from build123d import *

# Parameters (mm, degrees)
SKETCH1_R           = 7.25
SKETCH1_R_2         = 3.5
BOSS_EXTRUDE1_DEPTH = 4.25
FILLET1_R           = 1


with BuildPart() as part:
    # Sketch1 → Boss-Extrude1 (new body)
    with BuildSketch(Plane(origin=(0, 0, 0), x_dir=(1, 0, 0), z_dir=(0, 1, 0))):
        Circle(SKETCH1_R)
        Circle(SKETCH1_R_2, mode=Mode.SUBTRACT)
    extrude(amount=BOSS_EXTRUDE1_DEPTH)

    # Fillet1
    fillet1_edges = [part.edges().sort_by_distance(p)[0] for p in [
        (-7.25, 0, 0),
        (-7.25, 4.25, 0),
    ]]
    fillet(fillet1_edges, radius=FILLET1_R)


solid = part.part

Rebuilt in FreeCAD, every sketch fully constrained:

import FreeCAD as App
import Part
import Sketcher


def edges_at(feature, points):
    """Names of the edges that pass closest to the given points."""
    edges = feature.Shape.Edges
    near = lambda p: min(range(len(edges)), key=lambda i: edges[i].distToShape(Part.Vertex(*p))[0])
    return sorted({f"Edge{near(p) + 1}" for p in points})

doc = App.newDocument("Part")
body = doc.addObject("PartDesign::Body", "Body")

sketch1 = body.newObject("Sketcher::SketchObject", "Sketch")
sketch1.AttachmentSupport = (doc.getObject("XZ_Plane"), [""])
sketch1.MapMode = "FlatFace"
sketch1.addGeometry(Part.Circle(App.Vector(0, 0, 0), App.Vector(0, 0, 1), 7.2), False)
sketch1.addGeometry(Part.Circle(App.Vector(0, 0, 0), App.Vector(0, 0, 1), 3.5), False)
sketch1.addConstraint(Sketcher.Constraint("Coincident", 0, 3, -1, 1))
sketch1.addConstraint(Sketcher.Constraint("Coincident", 1, 3, -1, 1))
sketch1.addConstraint(Sketcher.Constraint("Diameter", 1, 7.0))
sketch1.addConstraint(Sketcher.Constraint("Diameter", 0, 14.5))
pad1 = body.newObject("PartDesign::Pad", "Pad")
pad1.Profile = sketch1
pad1.Length = 4.25
pad1.Reversed = True
doc.recompute()

fillet = body.newObject("PartDesign::Fillet", "Fillet")
fillet.Base = (pad1, edges_at(pad1, [(-7.25, 0, 0), (-7.25, 4.25, 0)]))
fillet.Radius = 1

doc.recompute()
